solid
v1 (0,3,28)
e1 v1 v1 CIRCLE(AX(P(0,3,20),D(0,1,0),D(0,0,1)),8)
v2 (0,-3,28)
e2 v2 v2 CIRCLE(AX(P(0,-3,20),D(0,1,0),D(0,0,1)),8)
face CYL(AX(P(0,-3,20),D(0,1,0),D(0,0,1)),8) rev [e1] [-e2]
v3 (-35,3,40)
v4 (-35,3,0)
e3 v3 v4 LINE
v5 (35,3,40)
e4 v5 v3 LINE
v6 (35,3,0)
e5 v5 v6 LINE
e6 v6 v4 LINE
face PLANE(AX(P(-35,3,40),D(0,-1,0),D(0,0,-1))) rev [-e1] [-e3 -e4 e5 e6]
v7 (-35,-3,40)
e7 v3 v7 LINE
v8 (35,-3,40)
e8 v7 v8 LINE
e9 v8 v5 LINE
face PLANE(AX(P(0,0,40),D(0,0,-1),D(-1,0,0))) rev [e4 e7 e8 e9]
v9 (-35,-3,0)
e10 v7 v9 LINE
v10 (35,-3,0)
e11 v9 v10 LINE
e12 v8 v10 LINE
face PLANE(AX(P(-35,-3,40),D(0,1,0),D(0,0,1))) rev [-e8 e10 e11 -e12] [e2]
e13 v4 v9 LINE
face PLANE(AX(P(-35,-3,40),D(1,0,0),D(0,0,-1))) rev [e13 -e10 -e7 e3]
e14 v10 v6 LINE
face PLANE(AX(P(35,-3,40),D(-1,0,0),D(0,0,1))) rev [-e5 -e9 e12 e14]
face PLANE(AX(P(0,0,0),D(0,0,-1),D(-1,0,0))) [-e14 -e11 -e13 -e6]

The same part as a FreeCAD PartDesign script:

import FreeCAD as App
import Part
import Sketcher

V = App.Vector
Q = App.Units.Quantity

doc = App.newDocument("Part")
body = doc.addObject("PartDesign::Body", "Body")

# Sketch on XY plane
sketch1 = body.newObject("Sketcher::SketchObject", "Sketch")
sketch1.AttachmentSupport = (doc.getObject("XY_Plane"), [""])
sketch1.MapMode = "FlatFace"
sketch1.addGeometry([
    Part.LineSegment(V(-35, 3, 0), V(-35, -3, 0)),
    Part.LineSegment(V(-35, -3, 0), V(35, -3, 0)),
    Part.LineSegment(V(35, -3, 0), V(35, 3, 0)),
    Part.LineSegment(V(35, 3, 0), V(-35, 3, 0)),
], False)
sketch1.addConstraint([
    Sketcher.Constraint("Coincident", 0, 2, 1, 1),
    Sketcher.Constraint("Coincident", 1, 2, 2, 1),
    Sketcher.Constraint("Coincident", 2, 2, 3, 1),
    Sketcher.Constraint("Coincident", 3, 2, 0, 1),
    Sketcher.Constraint("Vertical", 0),
    Sketcher.Constraint("Horizontal", 1),
    Sketcher.Constraint("Vertical", 2),
    Sketcher.Constraint("Horizontal", 3),
    Sketcher.Constraint("Symmetric", 0, 2, 2, 2, -1, 1),
    Sketcher.Constraint("DistanceX", 1, 1, 1, 2, Q("70 mm")),
    Sketcher.Constraint("DistanceY", 0, 2, 0, 1, Q("6 mm")),
])
pad1 = body.newObject("PartDesign::Pad", "Pad")
pad1.Profile = sketch1
pad1.Length = 40

# Sketch on XZ plane
sketch2 = body.newObject("Sketcher::SketchObject", "Sketch001")
sketch2.AttachmentSupport = (doc.getObject("XZ_Plane"), [""])
sketch2.MapMode = "FlatFace"
sketch2.AttachmentOffset = App.Placement(V(0, 0, -3), App.Rotation())
sketch2.addGeometry(Part.Circle(V(0, 20, 0), V(0, 0, 1), 8), False)
sketch2.addConstraint([
    Sketcher.Constraint("PointOnObject", 0, 3, -2),
    Sketcher.Constraint("Diameter", 0, Q("16 mm")),
    Sketcher.Constraint("DistanceY", -1, 1, 0, 3, Q("20 mm")),
])
pocket1 = body.newObject("PartDesign::Pocket", "Pocket")
pocket1.Profile = sketch2
pocket1.Type = "ThroughAll"
pocket1.Reversed = True

doc.recompute()
